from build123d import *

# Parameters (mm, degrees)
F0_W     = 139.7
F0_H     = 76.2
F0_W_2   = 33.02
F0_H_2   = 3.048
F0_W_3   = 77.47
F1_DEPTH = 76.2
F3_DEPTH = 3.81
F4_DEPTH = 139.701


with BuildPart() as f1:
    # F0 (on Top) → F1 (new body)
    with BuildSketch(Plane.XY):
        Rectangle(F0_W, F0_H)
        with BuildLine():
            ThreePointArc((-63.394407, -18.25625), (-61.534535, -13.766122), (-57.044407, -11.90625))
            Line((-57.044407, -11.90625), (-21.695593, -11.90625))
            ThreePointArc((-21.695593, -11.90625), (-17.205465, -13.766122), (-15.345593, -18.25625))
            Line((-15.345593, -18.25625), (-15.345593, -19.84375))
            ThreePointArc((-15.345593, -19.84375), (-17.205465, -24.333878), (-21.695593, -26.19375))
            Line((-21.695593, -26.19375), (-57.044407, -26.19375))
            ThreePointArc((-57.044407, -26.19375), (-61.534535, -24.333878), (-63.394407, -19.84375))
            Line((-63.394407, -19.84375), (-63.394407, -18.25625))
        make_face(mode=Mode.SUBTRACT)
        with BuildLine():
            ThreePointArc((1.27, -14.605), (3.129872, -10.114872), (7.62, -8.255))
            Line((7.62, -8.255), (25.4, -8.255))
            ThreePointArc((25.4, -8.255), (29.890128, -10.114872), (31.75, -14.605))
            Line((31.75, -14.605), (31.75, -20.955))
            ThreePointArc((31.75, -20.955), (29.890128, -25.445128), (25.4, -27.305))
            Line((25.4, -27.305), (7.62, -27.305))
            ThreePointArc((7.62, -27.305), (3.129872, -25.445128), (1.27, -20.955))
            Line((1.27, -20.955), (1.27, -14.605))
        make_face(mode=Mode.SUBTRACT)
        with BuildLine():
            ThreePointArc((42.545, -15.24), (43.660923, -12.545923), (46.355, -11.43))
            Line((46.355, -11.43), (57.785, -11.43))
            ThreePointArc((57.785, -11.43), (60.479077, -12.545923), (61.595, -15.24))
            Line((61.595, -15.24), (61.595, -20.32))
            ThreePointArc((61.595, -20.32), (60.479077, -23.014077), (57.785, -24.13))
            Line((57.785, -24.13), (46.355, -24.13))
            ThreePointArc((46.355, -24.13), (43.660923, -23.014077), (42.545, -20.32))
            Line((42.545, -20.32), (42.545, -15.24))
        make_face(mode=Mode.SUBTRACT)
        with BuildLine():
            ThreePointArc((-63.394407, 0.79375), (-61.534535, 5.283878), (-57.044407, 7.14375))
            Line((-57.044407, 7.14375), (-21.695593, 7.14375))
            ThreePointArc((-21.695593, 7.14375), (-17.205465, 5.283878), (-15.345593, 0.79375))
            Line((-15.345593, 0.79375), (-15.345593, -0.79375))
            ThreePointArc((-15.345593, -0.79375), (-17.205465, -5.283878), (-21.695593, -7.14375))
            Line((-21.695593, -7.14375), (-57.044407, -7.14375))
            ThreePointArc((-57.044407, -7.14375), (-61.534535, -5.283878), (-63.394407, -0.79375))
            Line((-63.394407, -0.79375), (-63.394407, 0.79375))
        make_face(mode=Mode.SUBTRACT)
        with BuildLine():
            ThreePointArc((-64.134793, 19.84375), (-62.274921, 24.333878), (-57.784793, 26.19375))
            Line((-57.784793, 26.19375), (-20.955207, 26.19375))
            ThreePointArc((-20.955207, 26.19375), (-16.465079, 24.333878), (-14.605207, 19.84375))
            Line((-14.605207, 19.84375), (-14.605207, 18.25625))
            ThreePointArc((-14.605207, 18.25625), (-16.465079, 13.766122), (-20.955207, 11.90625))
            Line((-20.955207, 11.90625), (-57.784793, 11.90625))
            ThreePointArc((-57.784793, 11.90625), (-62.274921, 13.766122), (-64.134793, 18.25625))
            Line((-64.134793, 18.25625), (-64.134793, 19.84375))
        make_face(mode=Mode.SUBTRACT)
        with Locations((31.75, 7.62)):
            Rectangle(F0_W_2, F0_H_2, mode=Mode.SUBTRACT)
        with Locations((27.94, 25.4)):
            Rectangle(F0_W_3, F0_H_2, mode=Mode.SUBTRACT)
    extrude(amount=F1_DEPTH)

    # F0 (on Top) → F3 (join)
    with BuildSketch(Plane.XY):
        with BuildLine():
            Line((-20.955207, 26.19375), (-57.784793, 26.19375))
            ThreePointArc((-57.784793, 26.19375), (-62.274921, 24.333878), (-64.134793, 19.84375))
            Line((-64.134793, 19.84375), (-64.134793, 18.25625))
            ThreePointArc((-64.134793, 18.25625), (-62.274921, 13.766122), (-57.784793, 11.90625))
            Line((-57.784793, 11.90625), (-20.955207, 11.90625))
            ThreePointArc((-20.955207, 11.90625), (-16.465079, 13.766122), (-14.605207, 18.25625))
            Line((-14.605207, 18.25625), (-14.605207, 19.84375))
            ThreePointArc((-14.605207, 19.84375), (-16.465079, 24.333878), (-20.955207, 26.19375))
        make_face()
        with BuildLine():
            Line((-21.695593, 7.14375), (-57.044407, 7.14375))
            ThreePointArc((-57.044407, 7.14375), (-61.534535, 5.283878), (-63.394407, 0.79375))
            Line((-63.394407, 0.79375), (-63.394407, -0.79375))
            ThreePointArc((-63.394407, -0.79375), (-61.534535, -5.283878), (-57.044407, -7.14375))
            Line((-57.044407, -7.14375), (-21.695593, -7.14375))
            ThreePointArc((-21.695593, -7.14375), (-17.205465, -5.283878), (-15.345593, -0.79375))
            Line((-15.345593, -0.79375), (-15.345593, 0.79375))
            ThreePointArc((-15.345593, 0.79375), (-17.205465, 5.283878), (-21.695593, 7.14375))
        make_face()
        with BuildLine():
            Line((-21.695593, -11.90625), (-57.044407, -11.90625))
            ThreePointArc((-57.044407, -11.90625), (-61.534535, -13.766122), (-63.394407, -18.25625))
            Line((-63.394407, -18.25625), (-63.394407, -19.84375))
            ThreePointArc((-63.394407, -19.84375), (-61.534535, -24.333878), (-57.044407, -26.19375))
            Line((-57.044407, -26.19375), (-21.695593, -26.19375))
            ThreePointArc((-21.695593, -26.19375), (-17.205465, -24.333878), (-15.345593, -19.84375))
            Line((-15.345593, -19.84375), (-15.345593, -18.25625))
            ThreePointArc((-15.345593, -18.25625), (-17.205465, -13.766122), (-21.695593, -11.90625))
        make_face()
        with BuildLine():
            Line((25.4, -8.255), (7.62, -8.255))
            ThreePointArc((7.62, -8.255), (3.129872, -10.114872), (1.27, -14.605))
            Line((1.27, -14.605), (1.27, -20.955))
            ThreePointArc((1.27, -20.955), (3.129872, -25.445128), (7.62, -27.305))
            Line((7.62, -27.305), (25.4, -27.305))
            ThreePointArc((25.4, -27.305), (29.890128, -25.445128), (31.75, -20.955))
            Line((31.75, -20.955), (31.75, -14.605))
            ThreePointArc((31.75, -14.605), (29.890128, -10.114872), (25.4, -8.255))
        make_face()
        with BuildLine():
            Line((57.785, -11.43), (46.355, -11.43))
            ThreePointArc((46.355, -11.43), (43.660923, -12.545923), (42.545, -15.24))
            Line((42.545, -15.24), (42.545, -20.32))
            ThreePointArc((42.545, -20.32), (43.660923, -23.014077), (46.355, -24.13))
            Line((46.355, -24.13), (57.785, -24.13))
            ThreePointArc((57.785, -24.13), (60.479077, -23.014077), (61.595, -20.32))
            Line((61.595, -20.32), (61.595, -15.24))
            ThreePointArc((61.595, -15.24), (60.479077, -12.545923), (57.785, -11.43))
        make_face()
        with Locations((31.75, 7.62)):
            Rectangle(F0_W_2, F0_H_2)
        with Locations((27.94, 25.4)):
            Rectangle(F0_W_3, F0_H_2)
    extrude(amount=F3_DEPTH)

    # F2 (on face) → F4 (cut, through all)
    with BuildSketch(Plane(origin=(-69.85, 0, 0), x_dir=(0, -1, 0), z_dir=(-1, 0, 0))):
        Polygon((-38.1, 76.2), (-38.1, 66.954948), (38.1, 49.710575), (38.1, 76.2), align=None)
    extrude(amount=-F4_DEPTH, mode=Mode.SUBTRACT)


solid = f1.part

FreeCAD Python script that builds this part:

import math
import FreeCAD as App
import Part
import Sketcher
from FreeCAD import Vector
Q = App.Units.Quantity


def add_polygon(sketch, points):
    """Adds a closed chain of lines whose ends are joined by coincident constraints."""
    first, n = sketch.GeometryCount, len(points)
    for a, b in zip(points, points[1:] + points[:1]):
        sketch.addGeometry(Part.LineSegment(App.Vector(*a, 0), App.Vector(*b, 0)), False)
    for i in range(n):
        sketch.addConstraint(Sketcher.Constraint("Coincident", first + i, 2, first + (i + 1) % n, 1))

doc = App.newDocument("Part")
body = doc.addObject("PartDesign::Body", "Body")

sketch1 = body.newObject("Sketcher::SketchObject", "Sketch")
sketch1.AttachmentSupport = (doc.getObject("XY_Plane"), [""])
sketch1.MapMode = "FlatFace"
add_polygon(sketch1, [(-69.8, 38.1), (-69.8, -38.1), (69.8, -38.1), (69.8, 38.1)])
sketch1.addGeometry(Part.LineSegment(Vector(-63.4, -19.8, 0), Vector(-63.4, -18.3, 0)), False)
sketch1.addGeometry(Part.ArcOfCircle(Part.Circle(Vector(-57, -18.3, 0), Vector(0, 0, 1), 6.4), math.radians(90), math.radians(180)), False)
sketch1.addGeometry(Part.LineSegment(Vector(-57, -11.9, 0), Vector(-21.7, -11.9, 0)), False)
sketch1.addGeometry(Part.ArcOfCircle(Part.Circle(Vector(-21.7, -18.3, 0), Vector(0, 0, 1), 6.4), math.radians(0), math.radians(90)), False)
sketch1.addGeometry(Part.LineSegment(Vector(-15.3, -18.3, 0), Vector(-15.3, -19.8, 0)), False)
sketch1.addGeometry(Part.ArcOfCircle(Part.Circle(Vector(-21.7, -19.8, 0), Vector(0, 0, 1), 6.4), math.radians(-90), math.radians(0)), False)
sketch1.addGeometry(Part.LineSegment(Vector(-21.7, -26.2, 0), Vector(-57, -26.2, 0)), False)
sketch1.addGeometry(Part.ArcOfCircle(Part.Circle(Vector(-57, -19.8, 0), Vector(0, 0, 1), 6.4), math.radians(-180), math.radians(-90)), False)
sketch1.addGeometry(Part.LineSegment(Vector(1.3, -21, 0), Vector(1.3, -14.6, 0)), False)
sketch1.addGeometry(Part.ArcOfCircle(Part.Circle(Vector(7.6, -14.6, 0), Vector(0, 0, 1), 6.4), math.radians(90), math.radians(180)), False)
sketch1.addGeometry(Part.LineSegment(Vector(7.6, -8.3, 0), Vector(25.4, -8.3, 0)), False)
sketch1.addGeometry(Part.ArcOfCircle(Part.Circle(Vector(25.4, -14.6, 0), Vector(0, 0, 1), 6.4), math.radians(0), math.radians(90)), False)
sketch1.addGeometry(Part.LineSegment(Vector(31.8, -14.6, 0), Vector(31.8, -21, 0)), False)
sketch1.addGeometry(Part.ArcOfCircle(Part.Circle(Vector(25.4, -21, 0), Vector(0, 0, 1), 6.4), math.radians(-90), math.radians(0)), False)
sketch1.addGeometry(Part.LineSegment(Vector(25.4, -27.3, 0), Vector(7.6, -27.3, 0)), False)
sketch1.addGeometry(Part.ArcOfCircle(Part.Circle(Vector(7.6, -21, 0), Vector(0, 0, 1), 6.4), math.radians(-180), math.radians(-90)), False)
sketch1.addGeometry(Part.LineSegment(Vector(42.5, -20.3, 0), Vector(42.5, -15.2, 0)), False)
sketch1.addGeometry(Part.ArcOfCircle(Part.Circle(Vector(46.4, -15.2, 0), Vector(0, 0, 1), 3.8), math.radians(90), math.radians(180)), False)
sketch1.addGeometry(Part.LineSegment(Vector(46.4, -11.4, 0), Vector(57.8, -11.4, 0)), False)
sketch1.addGeometry(Part.ArcOfCircle(Part.Circle(Vector(57.8, -15.2, 0), Vector(0, 0, 1), 3.8), math.radians(0), math.radians(90)), False)
sketch1.addGeometry(Part.LineSegment(Vector(61.6, -15.2, 0), Vector(61.6, -20.3, 0)), False)
sketch1.addGeometry(Part.ArcOfCircle(Part.Circle(Vector(57.8, -20.3, 0), Vector(0, 0, 1), 3.8), math.radians(-90), math.radians(0)), False)
sketch1.addGeometry(Part.LineSegment(Vector(57.8, -24.1, 0), Vector(46.4, -24.1, 0)), False)
sketch1.addGeometry(Part.ArcOfCircle(Part.Circle(Vector(46.4, -20.3, 0), Vector(0, 0, 1), 3.8), math.radians(180), math.radians(270)), False)
sketch1.addGeometry(Part.LineSegment(Vector(-63.4, -0.8, 0), Vector(-63.4, 0.8, 0)), False)
sketch1.addGeometry(Part.ArcOfCircle(Part.Circle(Vector(-57, 0.8, 0), Vector(0, 0, 1), 6.4), math.radians(90), math.radians(180)), False)
sketch1.addGeometry(Part.LineSegment(Vector(-57, 7.1, 0), Vector(-21.7, 7.1, 0)), False)
sketch1.addGeometry(Part.ArcOfCircle(Part.Circle(Vector(-21.7, 0.8, 0), Vector(0, 0, 1), 6.4), math.radians(0), math.radians(90)), False)
sketch1.addGeometry(Part.LineSegment(Vector(-15.3, 0.8, 0), Vector(-15.3, -0.8, 0)), False)
sketch1.addGeometry(Part.ArcOfCircle(Part.Circle(Vector(-21.7, -0.8, 0), Vector(0, 0, 1), 6.4), math.radians(-90), math.radians(0)), False)
sketch1.addGeometry(Part.LineSegment(Vector(-21.7, -7.1, 0), Vector(-57, -7.1, 0)), False)
sketch1.addGeometry(Part.ArcOfCircle(Part.Circle(Vector(-57, -0.8, 0), Vector(0, 0, 1), 6.4), math.radians(-180), math.radians(-90)), False)
sketch1.addGeometry(Part.LineSegment(Vector(-64.1, 18.3, 0), Vector(-64.1, 19.8, 0)), False)
sketch1.addGeometry(Part.ArcOfCircle(Part.Circle(Vector(-57.8, 19.8, 0), Vector(0, 0, 1), 6.4), math.radians(90), math.radians(180)), False)
sketch1.addGeometry(Part.LineSegment(Vector(-57.8, 26.2, 0), Vector(-21, 26.2, 0)), False)
sketch1.addGeometry(Part.ArcOfCircle(Part.Circle(Vector(-21, 19.8, 0), Vector(0, 0, 1), 6.4), math.radians(0), math.radians(90)), False)
sketch1.addGeometry(Part.LineSegment(Vector(-14.6, 19.8, 0), Vector(-14.6, 18.3, 0)), False)
sketch1.addGeometry(Part.ArcOfCircle(Part.Circle(Vector(-21, 18.3, 0), Vector(0, 0, 1), 6.4), math.radians(-90), math.radians(0)), False)
sketch1.addGeometry(Part.LineSegment(Vector(-21, 11.9, 0), Vector(-57.8, 11.9, 0)), False)
sketch1.addGeometry(Part.ArcOfCircle(Part.Circle(Vector(-57.8, 18.3, 0), Vector(0, 0, 1), 6.4), math.radians(-180), math.radians(-90)), False)
add_polygon(sketch1, [(48.3, 6.1), (15.2, 6.1), (15.2, 9.1), (48.3, 9.1)])
add_polygon(sketch1, [(66.7, 23.9), (-10.8, 23.9), (-10.8, 26.9), (66.7, 26.9)])
sketch1.addConstraint(Sketcher.Constraint("Tangent", 4, 2, 5, 2))
sketch1.addConstraint(Sketcher.Constraint("Tangent", 5, 1, 6, 1))
sketch1.addConstraint(Sketcher.Constraint("Tangent", 6, 2, 7, 2))
sketch1.addConstraint(Sketcher.Constraint("Tangent", 7, 1, 8, 1))
sketch1.addConstraint(Sketcher.Constraint("Tangent", 8, 2, 9, 2))
sketch1.addConstraint(Sketcher.Constraint("Tangent", 9, 1, 10, 1))
sketch1.addConstraint(Sketcher.Constraint("Tangent", 10, 2, 11, 2))
sketch1.addConstraint(Sketcher.Constraint("Tangent", 11, 1, 4, 1))
sketch1.addConstraint(Sketcher.Constraint("Tangent", 12, 2, 13, 2))
sketch1.addConstraint(Sketcher.Constraint("Tangent", 13, 1, 14, 1))
sketch1.addConstraint(Sketcher.Constraint("Tangent", 14, 2, 15, 2))
sketch1.addConstraint(Sketcher.Constraint("Tangent", 15, 1, 16, 1))
sketch1.addConstraint(Sketcher.Constraint("Tangent", 16, 2, 17, 2))
sketch1.addConstraint(Sketcher.Constraint("Tangent", 17, 1, 18, 1))
sketch1.addConstraint(Sketcher.Constraint("Tangent", 18, 2, 19, 2))
sketch1.addConstraint(Sketcher.Constraint("Tangent", 19, 1, 12, 1))
sketch1.addConstraint(Sketcher.Constraint("Tangent", 20, 2, 21, 2))
sketch1.addConstraint(Sketcher.Constraint("Tangent", 21, 1, 22, 1))
sketch1.addConstraint(Sketcher.Constraint("Tangent", 22, 2, 23, 2))
sketch1.addConstraint(Sketcher.Constraint("Tangent", 23, 1, 24, 1))
sketch1.addConstraint(Sketcher.Constraint("Tangent", 24, 2, 25, 2))
sketch1.addConstraint(Sketcher.Constraint("Tangent", 25, 1, 26, 1))
sketch1.addConstraint(Sketcher.Constraint("Tangent", 26, 2, 27, 2))
sketch1.addConstraint(Sketcher.Constraint("Tangent", 27, 1, 20, 1))
sketch1.addConstraint(Sketcher.Constraint("Tangent", 28, 2, 29, 2))
sketch1.addConstraint(Sketcher.Constraint("Tangent", 29, 1, 30, 1))
sketch1.addConstraint(Sketcher.Constraint("Tangent", 30, 2, 31, 2))
sketch1.addConstraint(Sketcher.Constraint("Tangent", 31, 1, 32, 1))
sketch1.addConstraint(Sketcher.Constraint("Tangent", 32, 2, 33, 2))
sketch1.addConstraint(Sketcher.Constraint("Tangent", 33, 1, 34, 1))
sketch1.addConstraint(Sketcher.Constraint("Tangent", 34, 2, 35, 2))
sketch1.addConstraint(Sketcher.Constraint("Tangent", 35, 1, 28, 1))
sketch1.addConstraint(Sketcher.Constraint("Tangent", 36, 2, 37, 2))
sketch1.addConstraint(Sketcher.Constraint("Tangent", 37, 1, 38, 1))
sketch1.addConstraint(Sketcher.Constraint("Tangent", 38, 2, 39, 2))
sketch1.addConstraint(Sketcher.Constraint("Tangent", 39, 1, 40, 1))
sketch1.addConstraint(Sketcher.Constraint("Tangent", 40, 2, 41, 2))
sketch1.addConstraint(Sketcher.Constraint("Tangent", 41, 1, 42, 1))
sketch1.addConstraint(Sketcher.Constraint("Tangent", 42, 2, 43, 2))
sketch1.addConstraint(Sketcher.Constraint("Tangent", 43, 1, 36, 1))
sketch1.addConstraint(Sketcher.Constraint("Vertical", 0))
sketch1.addConstraint(Sketcher.Constraint("Horizontal", 1))
sketch1.addConstraint(Sketcher.Constraint("Vertical", 2))
sketch1.addConstraint(Sketcher.Constraint("Horizontal", 3))
sketch1.addConstraint(Sketcher.Constraint("Vertical", 4))
sketch1.addConstraint(Sketcher.Constraint("Horizontal", 6))
sketch1.addConstraint(Sketcher.Constraint("Vertical", 8))
sketch1.addConstraint(Sketcher.Constraint("Horizontal", 10))
sketch1.addConstraint(Sketcher.Constraint("Vertical", 12))
sketch1.addConstraint(Sketcher.Constraint("Horizontal", 14))
sketch1.addConstraint(Sketcher.Constraint("Vertical", 16))
sketch1.addConstraint(Sketcher.Constraint("Horizontal", 18))
sketch1.addConstraint(Sketcher.Constraint("Vertical", 20))
sketch1.addConstraint(Sketcher.Constraint("Horizontal", 22))
sketch1.addConstraint(Sketcher.Constraint("Vertical", 24))
sketch1.addConstraint(Sketcher.Constraint("Horizontal", 26))
sketch1.addConstraint(Sketcher.Constraint("Vertical", 28))
sketch1.addConstraint(Sketcher.Constraint("Horizontal", 30))
sketch1.addConstraint(Sketcher.Constraint("Vertical", 32))
sketch1.addConstraint(Sketcher.Constraint("Horizontal", 34))
sketch1.addConstraint(Sketcher.Constraint("Vertical", 36))
sketch1.addConstraint(Sketcher.Constraint("Horizontal", 38))
sketch1.addConstraint(Sketcher.Constraint("Vertical", 40))
sketch1.addConstraint(Sketcher.Constraint("Horizontal", 42))
sketch1.addConstraint(Sketcher.Constraint("Horizontal", 44))
sketch1.addConstraint(Sketcher.Constraint("Vertical", 45))
sketch1.addConstraint(Sketcher.Constraint("Horizontal", 46))
sketch1.addConstraint(Sketcher.Constraint("Vertical", 47))
sketch1.addConstraint(Sketcher.Constraint("Horizontal", 48))
sketch1.addConstraint(Sketcher.Constraint("Vertical", 49))
sketch1.addConstraint(Sketcher.Constraint("Horizontal", 50))
sketch1.addConstraint(Sketcher.Constraint("Vertical", 51))
sketch1.addConstraint(Sketcher.Constraint("Equal", 5, 7))
sketch1.addConstraint(Sketcher.Constraint("Equal", 7, 9))
sketch1.addConstraint(Sketcher.Constraint("Equal", 9, 11))
sketch1.addConstraint(Sketcher.Constraint("Equal", 11, 13))
sketch1.addConstraint(Sketcher.Constraint("Equal", 13, 15))
sketch1.addConstraint(Sketcher.Constraint("Equal", 15, 17))
sketch1.addConstraint(Sketcher.Constraint("Equal", 17, 19))
sketch1.addConstraint(Sketcher.Constraint("Equal", 21, 23))
sketch1.addConstraint(Sketcher.Constraint("Equal", 23, 25))
sketch1.addConstraint(Sketcher.Constraint("Equal", 25, 27))
sketch1.addConstraint(Sketcher.Constraint("Equal", 19, 29))
sketch1.addConstraint(Sketcher.Constraint("Equal", 29, 31))
sketch1.addConstraint(Sketcher.Constraint("Equal", 31, 33))
sketch1.addConstraint(Sketcher.Constraint("Equal", 33, 35))
sketch1.addConstraint(Sketcher.Constraint("Equal", 35, 37))
sketch1.addConstraint(Sketcher.Constraint("Equal", 37, 39))
sketch1.addConstraint(Sketcher.Constraint("Equal", 39, 41))
sketch1.addConstraint(Sketcher.Constraint("Equal", 41, 43))
sketch1.addConstraint(Sketcher.Constraint("Symmetric", 0, 2, 2, 2, -1, 1))
sketch1.addConstraint(Sketcher.Constraint("Vertical", 11, 3, 29, 3))
sketch1.addConstraint(Sketcher.Constraint("Vertical", 9, 3, 31, 3))
sketch1.addConstraint(Sketcher.Constraint("Equal", 8, 28))
sketch1.addConstraint(Sketcher.Constraint("Equal", 32, 36))
sketch1.addConstraint(Sketcher.Constraint("Equal", 47, 49))
sketch1.addConstraint(Sketcher.Constraint("DistanceY", 0, 2, 0, 1, Q("3 in")))
sketch1.addConstraint(Sketcher.Constraint("Radius", 5, Q("0.25 in")))
sketch1.addConstraint(Sketcher.Constraint("Radius", 21, Q("0.15 in")))
sketch1.addConstraint(Sketcher.Constraint("DistanceX", 1, 1, 1, 2, Q("5.5 in")))
sketch1.addConstraint(Sketcher.Constraint("DistanceX", 14, 1, 14, 2, Q("0.7 in")))
sketch1.addConstraint(Sketcher.Constraint("DistanceX", 44, 2, 44, 1, Q("1.3 in")))
sketch1.addConstraint(Sketcher.Constraint("DistanceY", 20, 1, 20, 2, Q("0.2 in")))
sketch1.addConstraint(Sketcher.Constraint("DistanceX", -1, 1, 15, 3, Q("1 in")))
sketch1.addConstraint(Sketcher.Constraint("DistanceX", 22, 1, 22, 2, Q("0.45 in")))
sketch1.addConstraint(Sketcher.Constraint("DistanceX", 48, 2, 48, 1, Q("3.05 in")))
sketch1.addConstraint(Sketcher.Constraint("DistanceY", 12, 1, 12, 2, Q("0.25 in")))
sketch1.addConstraint(Sketcher.Constraint("DistanceY", 45, 1, 45, 2, Q("0.12 in")))
sketch1.addConstraint(Sketcher.Constraint("DistanceY", 21, 3, -1, 1, Q("0.6 in")))
sketch1.addConstraint(Sketcher.Constraint("DistanceX", -1, 1, 44, 2, Q("0.6 in")))
sketch1.addConstraint(Sketcher.Constraint("DistanceY", 4, 1, 4, 2, Q("0.0625 in")))
sketch1.addConstraint(Sketcher.Constraint("DistanceY", -1, 1, 44, 2, Q("0.24 in")))
sketch1.addConstraint(Sketcher.Constraint("DistanceY", -1, 1, 48, 2, Q("0.94 in")))
sketch1.addConstraint(Sketcher.Constraint("DistanceY", 5, 3, -1, 1, Q("0.71875 in")))
sketch1.addConstraint(Sketcher.Constraint("DistanceY", 13, 3, -1, 1, Q("0.575 in")))
sketch1.addConstraint(Sketcher.Constraint("DistanceX", -1, 1, 21, 3, Q("1.825 in")))
sketch1.addConstraint(Sketcher.Constraint("DistanceY", -1, 1, 29, 3, Q("0.03125 in")))
sketch1.addConstraint(Sketcher.Constraint("DistanceY", -1, 1, 37, 3, Q("0.78125 in")))
sketch1.addConstraint(Sketcher.Constraint("DistanceX", 48, 2, -1, 1, Q("0.425 in")))
sketch1.addConstraint(Sketcher.Constraint("DistanceX", 6, 1, 6, 2, Q("35.348814 mm")))
sketch1.addConstraint(Sketcher.Constraint("DistanceX", 38, 1, 38, 2, Q("36.829586 mm")))
sketch1.addConstraint(Sketcher.Constraint("DistanceX", 5, 3, -1, 1, Q("57.044407 mm")))
sketch1.addConstraint(Sketcher.Constraint("DistanceX", 37, 3, -1, 1, Q("57.784793 mm")))
pad1 = body.newObject("PartDesign::Pad", "Pad")
pad1.Profile = sketch1
pad1.Length = Q("3 in")

sketch2 = body.newObject("Sketcher::SketchObject", "Sketch001")
sketch2.AttachmentSupport = (doc.getObject("XY_Plane"), [""])
sketch2.MapMode = "FlatFace"
sketch2.addGeometry(Part.LineSegment(Vector(-21, 26.2, 0), Vector(-57.8, 26.2, 0)), False)
sketch2.addGeometry(Part.ArcOfCircle(Part.Circle(Vector(-57.8, 19.8, 0), Vector(0, 0, 1), 6.4), math.radians(90), math.radians(180)), False)
sketch2.addGeometry(Part.LineSegment(Vector(-64.1, 19.8, 0), Vector(-64.1, 18.3, 0)), False)
sketch2.addGeometry(Part.ArcOfCircle(Part.Circle(Vector(-57.8, 18.3, 0), Vector(0, 0, 1), 6.4), math.radians(-180), math.radians(-90)), False)
sketch2.addGeometry(Part.LineSegment(Vector(-57.8, 11.9, 0), Vector(-21, 11.9, 0)), False)
sketch2.addGeometry(Part.ArcOfCircle(Part.Circle(Vector(-21, 18.3, 0), Vector(0, 0, 1), 6.4), math.radians(-90), math.radians(0)), False)
sketch2.addGeometry(Part.LineSegment(Vector(-14.6, 18.3, 0), Vector(-14.6, 19.8, 0)), False)
sketch2.addGeometry(Part.ArcOfCircle(Part.Circle(Vector(-21, 19.8, 0), Vector(0, 0, 1), 6.4), math.radians(0), math.radians(90)), False)
sketch2.addGeometry(Part.LineSegment(Vector(-21.7, 7.1, 0), Vector(-57, 7.1, 0)), False)
sketch2.addGeometry(Part.ArcOfCircle(Part.Circle(Vector(-57, 0.8, 0), Vector(0, 0, 1), 6.4), math.radians(90), math.radians(180)), False)
sketch2.addGeometry(Part.LineSegment(Vector(-63.4, 0.8, 0), Vector(-63.4, -0.8, 0)), False)
sketch2.addGeometry(Part.ArcOfCircle(Part.Circle(Vector(-57, -0.8, 0), Vector(0, 0, 1), 6.4), math.radians(-180), math.radians(-90)), False)
sketch2.addGeometry(Part.LineSegment(Vector(-57, -7.1, 0), Vector(-21.7, -7.1, 0)), False)
sketch2.addGeometry(Part.ArcOfCircle(Part.Circle(Vector(-21.7, -0.8, 0), Vector(0, 0, 1), 6.4), math.radians(-90), math.radians(0)), False)
sketch2.addGeometry(Part.LineSegment(Vector(-15.3, -0.8, 0), Vector(-15.3, 0.8, 0)), False)
sketch2.addGeometry(Part.ArcOfCircle(Part.Circle(Vector(-21.7, 0.8, 0), Vector(0, 0, 1), 6.4), math.radians(0), math.radians(90)), False)
sketch2.addGeometry(Part.LineSegment(Vector(-21.7, -11.9, 0), Vector(-57, -11.9, 0)), False)
sketch2.addGeometry(Part.ArcOfCircle(Part.Circle(Vector(-57, -18.3, 0), Vector(0, 0, 1), 6.4), math.radians(90), math.radians(180)), False)
sketch2.addGeometry(Part.LineSegment(Vector(-63.4, -18.3, 0), Vector(-63.4, -19.8, 0)), False)
sketch2.addGeometry(Part.ArcOfCircle(Part.Circle(Vector(-57, -19.8, 0), Vector(0, 0, 1), 6.4), math.radians(-180), math.radians(-90)), False)
sketch2.addGeometry(Part.LineSegment(Vector(-57, -26.2, 0), Vector(-21.7, -26.2, 0)), False)
sketch2.addGeometry(Part.ArcOfCircle(Part.Circle(Vector(-21.7, -19.8, 0), Vector(0, 0, 1), 6.4), math.radians(-90), math.radians(0)), False)
sketch2.addGeometry(Part.LineSegment(Vector(-15.3, -19.8, 0), Vector(-15.3, -18.3, 0)), False)
sketch2.addGeometry(Part.ArcOfCircle(Part.Circle(Vector(-21.7, -18.3, 0), Vector(0, 0, 1), 6.4), math.radians(0), math.radians(90)), False)
sketch2.addGeometry(Part.LineSegment(Vector(25.4, -8.3, 0), Vector(7.6, -8.3, 0)), False)
sketch2.addGeometry(Part.ArcOfCircle(Part.Circle(Vector(7.6, -14.6, 0), Vector(0, 0, 1), 6.4), math.radians(90), math.radians(180)), False)
sketch2.addGeometry(Part.LineSegment(Vector(1.3, -14.6, 0), Vector(1.3, -21, 0)), False)
sketch2.addGeometry(Part.ArcOfCircle(Part.Circle(Vector(7.6, -21, 0), Vector(0, 0, 1), 6.4), math.radians(-180), math.radians(-90)), False)
sketch2.addGeometry(Part.LineSegment(Vector(7.6, -27.3, 0), Vector(25.4, -27.3, 0)), False)
sketch2.addGeometry(Part.ArcOfCircle(Part.Circle(Vector(25.4, -21, 0), Vector(0, 0, 1), 6.4), math.radians(-90), math.radians(0)), False)
sketch2.addGeometry(Part.LineSegment(Vector(31.8, -21, 0), Vector(31.8, -14.6, 0)), False)
sketch2.addGeometry(Part.ArcOfCircle(Part.Circle(Vector(25.4, -14.6, 0), Vector(0, 0, 1), 6.4), math.radians(0), math.radians(90)), False)
sketch2.addGeometry(Part.LineSegment(Vector(57.8, -11.4, 0), Vector(46.4, -11.4, 0)), False)
sketch2.addGeometry(Part.ArcOfCircle(Part.Circle(Vector(46.4, -15.2, 0), Vector(0, 0, 1), 3.8), math.radians(90), math.radians(180)), False)
sketch2.addGeometry(Part.LineSegment(Vector(42.5, -15.2, 0), Vector(42.5, -20.3, 0)), False)
sketch2.addGeometry(Part.ArcOfCircle(Part.Circle(Vector(46.4, -20.3, 0), Vector(0, 0, 1), 3.8), math.radians(180), math.radians(270)), False)
sketch2.addGeometry(Part.LineSegment(Vector(46.4, -24.1, 0), Vector(57.8, -24.1, 0)), False)
sketch2.addGeometry(Part.ArcOfCircle(Part.Circle(Vector(57.8, -20.3, 0), Vector(0, 0, 1), 3.8), math.radians(-90), math.radians(0)), False)
sketch2.addGeometry(Part.LineSegment(Vector(61.6, -20.3, 0), Vector(61.6, -15.2, 0)), False)
sketch2.addGeometry(Part.ArcOfCircle(Part.Circle(Vector(57.8, -15.2, 0), Vector(0, 0, 1), 3.8), math.radians(0), math.radians(90)), False)
add_polygon(sketch2, [(15.2, 9.1), (15.2, 6.1), (48.3, 6.1), (48.3, 9.1)])
add_polygon(sketch2, [(-10.8, 26.9), (-10.8, 23.9), (66.7, 23.9), (66.7, 26.9)])
sketch2.addConstraint(Sketcher.Constraint("Tangent", 0, 2, 1, 1))
sketch2.addConstraint(Sketcher.Constraint("Tangent", 1, 2, 2, 1))
sketch2.addConstraint(Sketcher.Constraint("Tangent", 2, 2, 3, 1))
sketch2.addConstraint(Sketcher.Constraint("Tangent", 3, 2, 4, 1))
sketch2.addConstraint(Sketcher.Constraint("Tangent", 4, 2, 5, 1))
sketch2.addConstraint(Sketcher.Constraint("Tangent", 5, 2, 6, 1))
sketch2.addConstraint(Sketcher.Constraint("Tangent", 6, 2, 7, 1))
sketch2.addConstraint(Sketcher.Constraint("Tangent", 7, 2, 0, 1))
sketch2.addConstraint(Sketcher.Constraint("Tangent", 8, 2, 9, 1))
sketch2.addConstraint(Sketcher.Constraint("Tangent", 9, 2, 10, 1))
sketch2.addConstraint(Sketcher.Constraint("Tangent", 10, 2, 11, 1))
sketch2.addConstraint(Sketcher.Constraint("Tangent", 11, 2, 12, 1))
sketch2.addConstraint(Sketcher.Constraint("Tangent", 12, 2, 13, 1))
sketch2.addConstraint(Sketcher.Constraint("Tangent", 13, 2, 14, 1))
sketch2.addConstraint(Sketcher.Constraint("Tangent", 14, 2, 15, 1))
sketch2.addConstraint(Sketcher.Constraint("Tangent", 15, 2, 8, 1))
sketch2.addConstraint(Sketcher.Constraint("Tangent", 16, 2, 17, 1))
sketch2.addConstraint(Sketcher.Constraint("Tangent", 17, 2, 18, 1))
sketch2.addConstraint(Sketcher.Constraint("Tangent", 18, 2, 19, 1))
sketch2.addConstraint(Sketcher.Constraint("Tangent", 19, 2, 20, 1))
sketch2.addConstraint(Sketcher.Constraint("Tangent", 20, 2, 21, 1))
sketch2.addConstraint(Sketcher.Constraint("Tangent", 21, 2, 22, 1))
sketch2.addConstraint(Sketcher.Constraint("Tangent", 22, 2, 23, 1))
sketch2.addConstraint(Sketcher.Constraint("Tangent", 23, 2, 16, 1))
sketch2.addConstraint(Sketcher.Constraint("Tangent", 24, 2, 25, 1))
sketch2.addConstraint(Sketcher.Constraint("Tangent", 25, 2, 26, 1))
sketch2.addConstraint(Sketcher.Constraint("Tangent", 26, 2, 27, 1))
sketch2.addConstraint(Sketcher.Constraint("Tangent", 27, 2, 28, 1))
sketch2.addConstraint(Sketcher.Constraint("Tangent", 28, 2, 29, 1))
sketch2.addConstraint(Sketcher.Constraint("Tangent", 29, 2, 30, 1))
sketch2.addConstraint(Sketcher.Constraint("Tangent", 30, 2, 31, 1))
sketch2.addConstraint(Sketcher.Constraint("Tangent", 31, 2, 24, 1))
sketch2.addConstraint(Sketcher.Constraint("Tangent", 32, 2, 33, 1))
sketch2.addConstraint(Sketcher.Constraint("Tangent", 33, 2, 34, 1))
sketch2.addConstraint(Sketcher.Constraint("Tangent", 34, 2, 35, 1))
sketch2.addConstraint(Sketcher.Constraint("Tangent", 35, 2, 36, 1))
sketch2.addConstraint(Sketcher.Constraint("Tangent", 36, 2, 37, 1))
sketch2.addConstraint(Sketcher.Constraint("Tangent", 37, 2, 38, 1))
sketch2.addConstraint(Sketcher.Constraint("Tangent", 38, 2, 39, 1))
sketch2.addConstraint(Sketcher.Constraint("Tangent", 39, 2, 32, 1))
sketch2.addConstraint(Sketcher.Constraint("Horizontal", 0))
sketch2.addConstraint(Sketcher.Constraint("Vertical", 2))
sketch2.addConstraint(Sketcher.Constraint("Horizontal", 4))
sketch2.addConstraint(Sketcher.Constraint("Vertical", 6))
sketch2.addConstraint(Sketcher.Constraint("Horizontal", 8))
sketch2.addConstraint(Sketcher.Constraint("Vertical", 10))
sketch2.addConstraint(Sketcher.Constraint("Horizontal", 12))
sketch2.addConstraint(Sketcher.Constraint("Vertical", 14))
sketch2.addConstraint(Sketcher.Constraint("Horizontal", 16))
sketch2.addConstraint(Sketcher.Constraint("Vertical", 18))
sketch2.addConstraint(Sketcher.Constraint("Horizontal", 20))
sketch2.addConstraint(Sketcher.Constraint("Vertical", 22))
sketch2.addConstraint(Sketcher.Constraint("Horizontal", 24))
sketch2.addConstraint(Sketcher.Constraint("Vertical", 26))
sketch2.addConstraint(Sketcher.Constraint("Horizontal", 28))
sketch2.addConstraint(Sketcher.Constraint("Vertical", 30))
sketch2.addConstraint(Sketcher.Constraint("Horizontal", 32))
sketch2.addConstraint(Sketcher.Constraint("Vertical", 34))
sketch2.addConstraint(Sketcher.Constraint("Horizontal", 36))
sketch2.addConstraint(Sketcher.Constraint("Vertical", 38))
sketch2.addConstraint(Sketcher.Constraint("Vertical", 40))
sketch2.addConstraint(Sketcher.Constraint("Horizontal", 41))
sketch2.addConstraint(Sketcher.Constraint("Vertical", 42))
sketch2.addConstraint(Sketcher.Constraint("Horizontal", 43))
sketch2.addConstraint(Sketcher.Constraint("Vertical", 44))
sketch2.addConstraint(Sketcher.Constraint("Horizontal", 45))
sketch2.addConstraint(Sketcher.Constraint("Vertical", 46))
sketch2.addConstraint(Sketcher.Constraint("Horizontal", 47))
sketch2.addConstraint(Sketcher.Constraint("Equal", 1, 3))
sketch2.addConstraint(Sketcher.Constraint("Equal", 3, 5))
sketch2.addConstraint(Sketcher.Constraint("Equal", 5, 7))
sketch2.addConstraint(Sketcher.Constraint("Equal", 7, 9))
sketch2.addConstraint(Sketcher.Constraint("Equal", 9, 11))
sketch2.addConstraint(Sketcher.Constraint("Equal", 11, 13))
sketch2.addConstraint(Sketcher.Constraint("Equal", 13, 15))
sketch2.addConstraint(Sketcher.Constraint("Equal", 15, 17))
sketch2.addConstraint(Sketcher.Constraint("Equal", 17, 19))
sketch2.addConstraint(Sketcher.Constraint("Equal", 19, 21))
sketch2.addConstraint(Sketcher.Constraint("Equal", 21, 23))
sketch2.addConstraint(Sketcher.Constraint("Equal", 23, 25))
sketch2.addConstraint(Sketcher.Constraint("Equal", 25, 27))
sketch2.addConstraint(Sketcher.Constraint("Equal", 27, 29))
sketch2.addConstraint(Sketcher.Constraint("Equal", 29, 31))
sketch2.addConstraint(Sketcher.Constraint("Equal", 33, 35))
sketch2.addConstraint(Sketcher.Constraint("Equal", 35, 37))
sketch2.addConstraint(Sketcher.Constraint("Equal", 37, 39))
sketch2.addConstraint(Sketcher.Constraint("Vertical", 11, 3, 17, 3))
sketch2.addConstraint(Sketcher.Constraint("Vertical", 15, 3, 21, 3))
sketch2.addConstraint(Sketcher.Constraint("Equal", 6, 10))
sketch2.addConstraint(Sketcher.Constraint("Equal", 14, 18))
sketch2.addConstraint(Sketcher.Constraint("Equal", 42, 44))
sketch2.addConstraint(Sketcher.Constraint("Radius", 1, Q("0.25 in")))
sketch2.addConstraint(Sketcher.Constraint("Radius", 33, Q("0.15 in")))
sketch2.addConstraint(Sketcher.Constraint("DistanceX", 24, 2, 24, 1, Q("0.7 in")))
sketch2.addConstraint(Sketcher.Constraint("DistanceX", 41, 1, 41, 2, Q("1.3 in")))
sketch2.addConstraint(Sketcher.Constraint("DistanceY", 34, 2, 34, 1, Q("0.2 in")))
sketch2.addConstraint(Sketcher.Constraint("DistanceX", -1, 1, 29, 3, Q("1 in")))
sketch2.addConstraint(Sketcher.Constraint("DistanceX", 32, 2, 32, 1, Q("0.45 in")))
sketch2.addConstraint(Sketcher.Constraint("DistanceX", 45, 1, 45, 2, Q("3.05 in")))
sketch2.addConstraint(Sketcher.Constraint("DistanceY", 26, 2, 26, 1, Q("0.25 in")))
sketch2.addConstraint(Sketcher.Constraint("DistanceY", 40, 2, 40, 1, Q("0.12 in")))
sketch2.addConstraint(Sketcher.Constraint("DistanceY", 33, 3, -1, 1, Q("0.6 in")))
sketch2.addConstraint(Sketcher.Constraint("DistanceX", -1, 1, 40, 2, Q("0.6 in")))
sketch2.addConstraint(Sketcher.Constraint("DistanceY", 2, 2, 2, 1, Q("0.0625 in")))
sketch2.addConstraint(Sketcher.Constraint("DistanceY", -1, 1, 40, 2, Q("0.24 in")))
sketch2.addConstraint(Sketcher.Constraint("DistanceY", -1, 1, 44, 2, Q("0.94 in")))
sketch2.addConstraint(Sketcher.Constraint("DistanceY", -1, 1, 1, 3, Q("0.78125 in")))
sketch2.addConstraint(Sketcher.Constraint("DistanceY", -1, 1, 9, 3, Q("0.03125 in")))
sketch2.addConstraint(Sketcher.Constraint("DistanceY", 17, 3, -1, 1, Q("0.71875 in")))
sketch2.addConstraint(Sketcher.Constraint("DistanceY", 25, 3, -1, 1, Q("0.575 in")))
sketch2.addConstraint(Sketcher.Constraint("DistanceX", -1, 1, 33, 3, Q("1.825 in")))
sketch2.addConstraint(Sketcher.Constraint("DistanceX", 44, 2, -1, 1, Q("0.425 in")))
sketch2.addConstraint(Sketcher.Constraint("DistanceX", 0, 2, 0, 1, Q("36.829586 mm")))
sketch2.addConstraint(Sketcher.Constraint("DistanceX", 8, 2, 8, 1, Q("35.348814 mm")))
sketch2.addConstraint(Sketcher.Constraint("DistanceX", 1, 3, -1, 1, Q("57.784793 mm")))
sketch2.addConstraint(Sketcher.Constraint("DistanceX", 9, 3, -1, 1, Q("57.044407 mm")))
pad2 = body.newObject("PartDesign::Pad", "Pad001")
pad2.Profile = sketch2
pad2.Length = Q("0.15 in")

sketch3 = body.newObject("Sketcher::SketchObject", "Sketch002")
sketch3.AttachmentSupport = (doc.getObject("YZ_Plane"), [""])
sketch3.MapMode = "FlatFace"
sketch3.AttachmentOffset = App.Placement(Vector(0, 0, -2.75 * 25.4), App.Rotation())
add_polygon(sketch3, [(38, 76), (38, 67), (-38, 50), (-38, 76)])
sketch3.addConstraint(Sketcher.Constraint("Vertical", 0))
sketch3.addConstraint(Sketcher.Constraint("Vertical", 2))
sketch3.addConstraint(Sketcher.Constraint("Horizontal", 3))
sketch3.addConstraint(Sketcher.Constraint("DistanceX", 3, 1, 3, 2, Q("3 in")))
sketch3.addConstraint(Sketcher.Constraint("DistanceY", -1, 1, 2, 2, Q("3 in")))
sketch3.addConstraint(Sketcher.Constraint("DistanceX", -1, 1, 0, 2, Q("1.5 in")))
sketch3.addConstraint(Sketcher.Constraint("DistanceY", 0, 2, 0, 1, Q("9.245052 mm")))
sketch3.addConstraint(Sketcher.Constraint("DistanceY", 2, 1, 2, 2, Q("26.489425 mm")))
pocket1 = body.newObject("PartDesign::Pocket", "Pocket")
pocket1.Profile = sketch3
pocket1.Type = "ThroughAll"
pocket1.Reversed = True

doc.recompute()
